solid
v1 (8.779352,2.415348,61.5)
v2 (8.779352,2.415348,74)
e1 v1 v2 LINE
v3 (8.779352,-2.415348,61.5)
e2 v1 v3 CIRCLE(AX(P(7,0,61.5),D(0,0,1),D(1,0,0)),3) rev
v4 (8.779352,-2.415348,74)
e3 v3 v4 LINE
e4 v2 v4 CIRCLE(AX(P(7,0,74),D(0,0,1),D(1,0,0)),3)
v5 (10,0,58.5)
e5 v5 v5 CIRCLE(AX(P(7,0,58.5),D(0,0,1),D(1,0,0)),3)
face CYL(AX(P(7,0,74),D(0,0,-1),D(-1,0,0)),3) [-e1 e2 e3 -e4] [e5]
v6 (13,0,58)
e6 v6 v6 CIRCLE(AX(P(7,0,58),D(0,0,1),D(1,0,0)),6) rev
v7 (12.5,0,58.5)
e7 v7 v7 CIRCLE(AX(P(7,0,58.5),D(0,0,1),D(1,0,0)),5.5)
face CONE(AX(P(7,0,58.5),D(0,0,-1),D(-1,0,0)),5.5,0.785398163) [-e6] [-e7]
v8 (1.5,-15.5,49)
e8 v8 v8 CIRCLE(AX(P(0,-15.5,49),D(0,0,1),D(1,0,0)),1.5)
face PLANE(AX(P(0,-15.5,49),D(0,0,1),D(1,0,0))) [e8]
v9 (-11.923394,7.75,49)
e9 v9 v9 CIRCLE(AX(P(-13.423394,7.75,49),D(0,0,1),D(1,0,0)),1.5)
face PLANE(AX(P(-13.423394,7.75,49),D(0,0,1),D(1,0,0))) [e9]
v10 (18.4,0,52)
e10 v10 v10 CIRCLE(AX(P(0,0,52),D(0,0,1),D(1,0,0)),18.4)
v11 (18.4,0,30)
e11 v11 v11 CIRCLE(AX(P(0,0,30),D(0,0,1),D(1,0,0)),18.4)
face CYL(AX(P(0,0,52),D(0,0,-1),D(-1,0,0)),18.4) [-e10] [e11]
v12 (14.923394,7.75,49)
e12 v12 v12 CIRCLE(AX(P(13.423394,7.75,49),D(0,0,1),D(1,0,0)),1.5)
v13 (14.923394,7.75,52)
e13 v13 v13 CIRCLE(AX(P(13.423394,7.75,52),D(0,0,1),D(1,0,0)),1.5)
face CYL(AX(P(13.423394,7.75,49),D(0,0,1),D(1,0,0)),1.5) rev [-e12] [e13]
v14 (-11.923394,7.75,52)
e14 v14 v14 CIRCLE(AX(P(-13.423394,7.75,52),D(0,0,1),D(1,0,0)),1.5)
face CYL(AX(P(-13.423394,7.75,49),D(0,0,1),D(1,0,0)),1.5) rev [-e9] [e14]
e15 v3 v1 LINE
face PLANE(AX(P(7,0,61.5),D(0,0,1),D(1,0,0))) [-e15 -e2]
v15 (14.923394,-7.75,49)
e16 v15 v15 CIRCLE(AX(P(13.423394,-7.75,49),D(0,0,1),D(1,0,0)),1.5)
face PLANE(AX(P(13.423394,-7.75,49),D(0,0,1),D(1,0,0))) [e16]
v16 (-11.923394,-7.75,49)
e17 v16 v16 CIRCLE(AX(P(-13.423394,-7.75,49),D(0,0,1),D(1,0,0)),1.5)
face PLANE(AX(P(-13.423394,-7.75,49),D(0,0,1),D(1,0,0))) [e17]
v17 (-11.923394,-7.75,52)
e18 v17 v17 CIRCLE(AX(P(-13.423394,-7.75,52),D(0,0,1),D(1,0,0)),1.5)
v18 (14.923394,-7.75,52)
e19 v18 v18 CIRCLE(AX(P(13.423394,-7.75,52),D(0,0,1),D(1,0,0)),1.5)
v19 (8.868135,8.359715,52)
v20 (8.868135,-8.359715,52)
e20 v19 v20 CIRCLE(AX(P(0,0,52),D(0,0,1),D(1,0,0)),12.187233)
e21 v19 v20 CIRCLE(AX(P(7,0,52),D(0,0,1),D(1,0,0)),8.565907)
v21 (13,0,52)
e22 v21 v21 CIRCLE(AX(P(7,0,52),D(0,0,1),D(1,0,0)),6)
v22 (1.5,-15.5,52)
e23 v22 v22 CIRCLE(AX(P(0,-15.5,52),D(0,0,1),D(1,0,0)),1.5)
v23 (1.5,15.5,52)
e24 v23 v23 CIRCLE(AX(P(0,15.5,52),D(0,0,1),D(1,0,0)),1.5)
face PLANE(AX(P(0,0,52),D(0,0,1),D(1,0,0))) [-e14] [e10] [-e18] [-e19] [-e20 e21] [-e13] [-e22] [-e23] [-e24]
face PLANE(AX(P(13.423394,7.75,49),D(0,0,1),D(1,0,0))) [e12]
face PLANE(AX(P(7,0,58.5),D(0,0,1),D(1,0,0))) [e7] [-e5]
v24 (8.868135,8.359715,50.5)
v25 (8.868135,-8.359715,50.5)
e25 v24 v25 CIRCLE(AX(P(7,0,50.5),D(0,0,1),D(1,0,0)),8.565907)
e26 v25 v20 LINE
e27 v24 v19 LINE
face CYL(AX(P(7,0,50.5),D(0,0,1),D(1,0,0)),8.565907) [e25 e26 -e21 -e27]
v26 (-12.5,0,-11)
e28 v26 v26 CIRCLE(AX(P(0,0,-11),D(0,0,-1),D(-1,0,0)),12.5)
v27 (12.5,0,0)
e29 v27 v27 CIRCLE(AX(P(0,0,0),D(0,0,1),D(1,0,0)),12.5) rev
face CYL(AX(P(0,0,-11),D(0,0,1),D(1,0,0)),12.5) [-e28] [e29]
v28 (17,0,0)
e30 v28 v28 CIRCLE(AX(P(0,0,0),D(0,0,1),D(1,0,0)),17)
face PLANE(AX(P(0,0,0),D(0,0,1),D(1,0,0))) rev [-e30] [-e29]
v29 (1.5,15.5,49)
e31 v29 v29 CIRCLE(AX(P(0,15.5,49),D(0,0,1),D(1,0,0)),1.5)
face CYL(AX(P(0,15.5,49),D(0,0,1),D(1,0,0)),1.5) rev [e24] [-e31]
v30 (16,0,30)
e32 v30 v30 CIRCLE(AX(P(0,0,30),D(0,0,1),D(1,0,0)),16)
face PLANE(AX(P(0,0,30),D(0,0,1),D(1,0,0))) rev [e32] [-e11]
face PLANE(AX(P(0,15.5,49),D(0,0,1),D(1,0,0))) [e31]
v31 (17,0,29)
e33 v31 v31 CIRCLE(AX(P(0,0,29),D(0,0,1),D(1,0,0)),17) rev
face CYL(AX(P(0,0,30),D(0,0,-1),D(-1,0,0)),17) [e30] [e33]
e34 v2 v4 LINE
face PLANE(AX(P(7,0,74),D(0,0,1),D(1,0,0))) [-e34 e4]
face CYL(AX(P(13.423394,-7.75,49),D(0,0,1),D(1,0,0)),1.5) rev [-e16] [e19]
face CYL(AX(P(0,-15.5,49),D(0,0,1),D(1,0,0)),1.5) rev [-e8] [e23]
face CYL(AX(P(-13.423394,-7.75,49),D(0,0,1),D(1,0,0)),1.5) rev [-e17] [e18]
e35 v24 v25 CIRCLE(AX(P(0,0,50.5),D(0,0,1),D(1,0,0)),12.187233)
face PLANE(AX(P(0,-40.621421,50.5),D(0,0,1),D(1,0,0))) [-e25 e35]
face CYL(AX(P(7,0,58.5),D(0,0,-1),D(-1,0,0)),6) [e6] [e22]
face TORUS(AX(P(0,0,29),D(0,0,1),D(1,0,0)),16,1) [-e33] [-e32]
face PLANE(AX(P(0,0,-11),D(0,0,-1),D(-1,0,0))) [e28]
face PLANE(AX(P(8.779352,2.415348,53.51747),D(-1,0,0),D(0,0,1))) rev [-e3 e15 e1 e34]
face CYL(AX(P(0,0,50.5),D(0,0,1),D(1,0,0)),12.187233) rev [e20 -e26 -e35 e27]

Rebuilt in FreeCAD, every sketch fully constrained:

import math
import FreeCAD as App
import Part
import Sketcher


def edges_at(feature, points):
    """Names of the edges that pass closest to the given points."""
    edges = feature.Shape.Edges
    near = lambda p: min(range(len(edges)), key=lambda i: edges[i].distToShape(Part.Vertex(*p))[0])
    return sorted({f"Edge{near(p) + 1}" for p in points})

doc = App.newDocument("Part")
body = doc.addObject("PartDesign::Body", "Body")

sketch1 = doc.addObject("Sketcher::SketchObject", "Sketch")
body.addObject(sketch1)
sketch1.AttachmentSupport = (doc.XY_Plane, [""])
sketch1.MapMode = "FlatFace"
sketch1.addGeometry(Part.Circle(App.Vector(0, 0, 0), App.Vector(0, 0, 1), 17), False)
sketch1.addConstraint([
    Sketcher.Constraint("Coincident", 0, 3, -1, 1),
    Sketcher.Constraint("Diameter", 0, 34.0),
])
pad1 = doc.addObject("PartDesign::Pad", "Pad")
body.addObject(pad1)
pad1.Profile = sketch1
pad1.Length = 30
doc.recompute()

fillet = doc.addObject("PartDesign::Fillet", "Fillet")
body.addObject(fillet)
fillet.Base = (pad1, edges_at(pad1, [(-17, 0, 30)]))
fillet.Radius = 1

sketch2 = doc.addObject("Sketcher::SketchObject", "Sketch001")
body.addObject(sketch2)
sketch2.AttachmentSupport = (doc.XY_Plane, [""])
sketch2.MapMode = "FlatFace"
sketch2.AttachmentOffset = App.Placement(App.Vector(0, 0, 30), App.Rotation())
sketch2.addGeometry(Part.Circle(App.Vector(0, 0, 0), App.Vector(0, 0, 1), 18), False)
sketch2.addConstraint([
    Sketcher.Constraint("Coincident", 0, 3, -1, 1),
    Sketcher.Constraint("Diameter", 0, 36.8),
])
pad2 = doc.addObject("PartDesign::Pad", "Pad001")
body.addObject(pad2)
pad2.Profile = sketch2
pad2.Length = 22

sketch3 = doc.addObject("Sketcher::SketchObject", "Sketch002")
body.addObject(sketch3)
sketch3.AttachmentSupport = (doc.XY_Plane, [""])
sketch3.MapMode = "FlatFace"
sketch3.AttachmentOffset = App.Placement(App.Vector(0, 0, 52), App.Rotation())
sketch3.addGeometry([
    Part.Circle(App.Vector(0, 15.5, 0), App.Vector(0, 0, 1), 1.5),
    Part.Circle(App.Vector(13.4, 7.8, 0), App.Vector(0, 0, 1), 1.5),
    Part.Circle(App.Vector(13.4, -7.8, 0), App.Vector(0, 0, 1), 1.5),
    Part.Circle(App.Vector(0, -15.5, 0), App.Vector(0, 0, 1), 1.5),
    Part.Circle(App.Vector(-13.4, -7.8, 0), App.Vector(0, 0, 1), 1.5),
    Part.Circle(App.Vector(-13.4, 7.8, 0), App.Vector(0, 0, 1), 1.5),
], False)
sketch3.addConstraint([
    Sketcher.Constraint("Equal", 0, 1),
    Sketcher.Constraint("Equal", 1, 2),
    Sketcher.Constraint("Equal", 2, 3),
    Sketcher.Constraint("Equal", 3, 4),
    Sketcher.Constraint("Equal", 4, 5),
    Sketcher.Constraint("Symmetric", 0, 3, 3, 3, -1, 1),
    Sketcher.Constraint("Symmetric", 1, 3, 4, 3, -1, 1),
    Sketcher.Constraint("Symmetric", 2, 3, 5, 3, -1, 1),
    Sketcher.Constraint("Symmetric", 2, 3, 4, 3, -2),
    Sketcher.Constraint("PointOnObject", 0, 3, -2),
    Sketcher.Constraint("Diameter", 0, 3.0),
    Sketcher.Constraint("DistanceY", 3, 3, 0, 3, 31.0),
    Sketcher.Constraint("DistanceY", 2, 3, 1, 3, 15.5),
    Sketcher.Constraint("DistanceX", -1, 1, 1, 3, 13.423394),
])
pocket1 = doc.addObject("PartDesign::Pocket", "Pocket")
body.addObject(pocket1)
pocket1.Profile = sketch3
pocket1.Length = 3

sketch4 = doc.addObject("Sketcher::SketchObject", "Sketch003")
body.addObject(sketch4)
sketch4.AttachmentSupport = (doc.XY_Plane, [""])
sketch4.MapMode = "FlatFace"
sketch4.AttachmentOffset = App.Placement(App.Vector(0, 0, 52), App.Rotation())
sketch4.addGeometry(Part.Circle(App.Vector(7, 0, 0), App.Vector(0, 0, 1), 6), False)
sketch4.addConstraint([
    Sketcher.Constraint("PointOnObject", 0, 3, -1),
    Sketcher.Constraint("Diameter", 0, 12.0),
    Sketcher.Constraint("DistanceX", -1, 1, 0, 3, 7.0),
])
pad3 = doc.addObject("PartDesign::Pad", "Pad002")
body.addObject(pad3)
pad3.Profile = sketch4
pad3.Length = 6.5
doc.recompute()

chamfer = doc.addObject("PartDesign::Chamfer", "Chamfer")
body.addObject(chamfer)
chamfer.Base = (pad3, edges_at(pad3, [(1, 0, 58.5)]))
chamfer.Size = 0.5

sketch5 = doc.addObject("Sketcher::SketchObject", "Sketch004")
body.addObject(sketch5)
sketch5.AttachmentSupport = (doc.XY_Plane, [""])
sketch5.MapMode = "FlatFace"
sketch5.AttachmentOffset = App.Placement(App.Vector(0, 0, 58.5), App.Rotation())
sketch5.addGeometry(Part.Circle(App.Vector(7, 0, 0), App.Vector(0, 0, 1), 3), False)
sketch5.addConstraint([
    Sketcher.Constraint("PointOnObject", 0, 3, -1),
    Sketcher.Constraint("Diameter", 0, 6.0),
    Sketcher.Constraint("DistanceX", -1, 1, 0, 3, 7.0),
])
pad4 = doc.addObject("PartDesign::Pad", "Pad003")
body.addObject(pad4)
pad4.Profile = sketch5
pad4.Length = 15.5

sketch6 = doc.addObject("Sketcher::SketchObject", "Sketch005")
body.addObject(sketch6)
sketch6.AttachmentSupport = (doc.XY_Plane, [""])
sketch6.MapMode = "FlatFace"
sketch6.AttachmentOffset = App.Placement(App.Vector(0, 0, 52), App.Rotation())
sketch6.addGeometry([
    Part.ArcOfCircle(Part.Circle(App.Vector(7, 0, 0), App.Vector(0, 0, 1), 9), math.radians(77), math.radians(283)),
    Part.ArcOfCircle(Part.Circle(App.Vector(0, 0, 0), App.Vector(0, 0, 1), 12), math.radians(43), math.radians(317)),
], False)
sketch6.addConstraint([
    Sketcher.Constraint("Coincident", 0, 1, 1, 1),
    Sketcher.Constraint("Coincident", 1, 2, 0, 2),
    Sketcher.Constraint("Coincident", 1, 3, -1, 1),
    Sketcher.Constraint("PointOnObject", 0, 3, -1),
    Sketcher.Constraint("DistanceX", -1, 1, 0, 3, 7.0),
    Sketcher.Constraint("Radius", 0, 8.565907),
    Sketcher.Constraint("Radius", 1, 12.187233),
])
pocket2 = doc.addObject("PartDesign::Pocket", "Pocket001")
body.addObject(pocket2)
pocket2.Profile = sketch6
pocket2.Length = 1.5

sketch7 = doc.addObject("Sketcher::SketchObject", "Sketch006")
body.addObject(sketch7)
sketch7.AttachmentSupport = (doc.XY_Plane, [""])
sketch7.MapMode = "FlatFace"
sketch7.addGeometry(Part.Circle(App.Vector(0, 0, 0), App.Vector(0, 0, 1), 12), False)
sketch7.addConstraint([
    Sketcher.Constraint("Coincident", 0, 3, -1, 1),
    Sketcher.Constraint("Diameter", 0, 25.0),
])
pad5 = doc.addObject("PartDesign::Pad", "Pad004")
body.addObject(pad5)
pad5.Profile = sketch7
pad5.Length = 11
pad5.Reversed = True

sketch8 = doc.addObject("Sketcher::SketchObject", "Sketch007")
body.addObject(sketch8)
sketch8.AttachmentSupport = (doc.XY_Plane, [""])
sketch8.MapMode = "FlatFace"
sketch8.AttachmentOffset = App.Placement(App.Vector(0, 0, 74), App.Rotation())
sketch8.addGeometry([
    Part.LineSegment(App.Vector(8.8, 2.4, 0), App.Vector(8.8, -2.4, 0)),
    Part.ArcOfCircle(Part.Circle(App.Vector(7, 0, 0), App.Vector(0, 0, 1), 3), math.radians(-54), math.radians(54)),
], False)
sketch8.addConstraint([
    Sketcher.Constraint("Coincident", 0, 1, 1, 2),
    Sketcher.Constraint("Coincident", 1, 1, 0, 2),
    Sketcher.Constraint("Vertical", 0),
    Sketcher.Constraint("PointOnObject", 1, 3, -1),
    Sketcher.Constraint("Radius", 1, 3.0),
    Sketcher.Constraint("DistanceX", -1, 1, 1, 3, 7.0),
    Sketcher.Constraint("DistanceY", 0, 2, 0, 1, 4.830696),
])
pocket3 = doc.addObject("PartDesign::Pocket", "Pocket002")
body.addObject(pocket3)
pocket3.Profile = sketch8
pocket3.Length = 12.5

doc.recompute()
